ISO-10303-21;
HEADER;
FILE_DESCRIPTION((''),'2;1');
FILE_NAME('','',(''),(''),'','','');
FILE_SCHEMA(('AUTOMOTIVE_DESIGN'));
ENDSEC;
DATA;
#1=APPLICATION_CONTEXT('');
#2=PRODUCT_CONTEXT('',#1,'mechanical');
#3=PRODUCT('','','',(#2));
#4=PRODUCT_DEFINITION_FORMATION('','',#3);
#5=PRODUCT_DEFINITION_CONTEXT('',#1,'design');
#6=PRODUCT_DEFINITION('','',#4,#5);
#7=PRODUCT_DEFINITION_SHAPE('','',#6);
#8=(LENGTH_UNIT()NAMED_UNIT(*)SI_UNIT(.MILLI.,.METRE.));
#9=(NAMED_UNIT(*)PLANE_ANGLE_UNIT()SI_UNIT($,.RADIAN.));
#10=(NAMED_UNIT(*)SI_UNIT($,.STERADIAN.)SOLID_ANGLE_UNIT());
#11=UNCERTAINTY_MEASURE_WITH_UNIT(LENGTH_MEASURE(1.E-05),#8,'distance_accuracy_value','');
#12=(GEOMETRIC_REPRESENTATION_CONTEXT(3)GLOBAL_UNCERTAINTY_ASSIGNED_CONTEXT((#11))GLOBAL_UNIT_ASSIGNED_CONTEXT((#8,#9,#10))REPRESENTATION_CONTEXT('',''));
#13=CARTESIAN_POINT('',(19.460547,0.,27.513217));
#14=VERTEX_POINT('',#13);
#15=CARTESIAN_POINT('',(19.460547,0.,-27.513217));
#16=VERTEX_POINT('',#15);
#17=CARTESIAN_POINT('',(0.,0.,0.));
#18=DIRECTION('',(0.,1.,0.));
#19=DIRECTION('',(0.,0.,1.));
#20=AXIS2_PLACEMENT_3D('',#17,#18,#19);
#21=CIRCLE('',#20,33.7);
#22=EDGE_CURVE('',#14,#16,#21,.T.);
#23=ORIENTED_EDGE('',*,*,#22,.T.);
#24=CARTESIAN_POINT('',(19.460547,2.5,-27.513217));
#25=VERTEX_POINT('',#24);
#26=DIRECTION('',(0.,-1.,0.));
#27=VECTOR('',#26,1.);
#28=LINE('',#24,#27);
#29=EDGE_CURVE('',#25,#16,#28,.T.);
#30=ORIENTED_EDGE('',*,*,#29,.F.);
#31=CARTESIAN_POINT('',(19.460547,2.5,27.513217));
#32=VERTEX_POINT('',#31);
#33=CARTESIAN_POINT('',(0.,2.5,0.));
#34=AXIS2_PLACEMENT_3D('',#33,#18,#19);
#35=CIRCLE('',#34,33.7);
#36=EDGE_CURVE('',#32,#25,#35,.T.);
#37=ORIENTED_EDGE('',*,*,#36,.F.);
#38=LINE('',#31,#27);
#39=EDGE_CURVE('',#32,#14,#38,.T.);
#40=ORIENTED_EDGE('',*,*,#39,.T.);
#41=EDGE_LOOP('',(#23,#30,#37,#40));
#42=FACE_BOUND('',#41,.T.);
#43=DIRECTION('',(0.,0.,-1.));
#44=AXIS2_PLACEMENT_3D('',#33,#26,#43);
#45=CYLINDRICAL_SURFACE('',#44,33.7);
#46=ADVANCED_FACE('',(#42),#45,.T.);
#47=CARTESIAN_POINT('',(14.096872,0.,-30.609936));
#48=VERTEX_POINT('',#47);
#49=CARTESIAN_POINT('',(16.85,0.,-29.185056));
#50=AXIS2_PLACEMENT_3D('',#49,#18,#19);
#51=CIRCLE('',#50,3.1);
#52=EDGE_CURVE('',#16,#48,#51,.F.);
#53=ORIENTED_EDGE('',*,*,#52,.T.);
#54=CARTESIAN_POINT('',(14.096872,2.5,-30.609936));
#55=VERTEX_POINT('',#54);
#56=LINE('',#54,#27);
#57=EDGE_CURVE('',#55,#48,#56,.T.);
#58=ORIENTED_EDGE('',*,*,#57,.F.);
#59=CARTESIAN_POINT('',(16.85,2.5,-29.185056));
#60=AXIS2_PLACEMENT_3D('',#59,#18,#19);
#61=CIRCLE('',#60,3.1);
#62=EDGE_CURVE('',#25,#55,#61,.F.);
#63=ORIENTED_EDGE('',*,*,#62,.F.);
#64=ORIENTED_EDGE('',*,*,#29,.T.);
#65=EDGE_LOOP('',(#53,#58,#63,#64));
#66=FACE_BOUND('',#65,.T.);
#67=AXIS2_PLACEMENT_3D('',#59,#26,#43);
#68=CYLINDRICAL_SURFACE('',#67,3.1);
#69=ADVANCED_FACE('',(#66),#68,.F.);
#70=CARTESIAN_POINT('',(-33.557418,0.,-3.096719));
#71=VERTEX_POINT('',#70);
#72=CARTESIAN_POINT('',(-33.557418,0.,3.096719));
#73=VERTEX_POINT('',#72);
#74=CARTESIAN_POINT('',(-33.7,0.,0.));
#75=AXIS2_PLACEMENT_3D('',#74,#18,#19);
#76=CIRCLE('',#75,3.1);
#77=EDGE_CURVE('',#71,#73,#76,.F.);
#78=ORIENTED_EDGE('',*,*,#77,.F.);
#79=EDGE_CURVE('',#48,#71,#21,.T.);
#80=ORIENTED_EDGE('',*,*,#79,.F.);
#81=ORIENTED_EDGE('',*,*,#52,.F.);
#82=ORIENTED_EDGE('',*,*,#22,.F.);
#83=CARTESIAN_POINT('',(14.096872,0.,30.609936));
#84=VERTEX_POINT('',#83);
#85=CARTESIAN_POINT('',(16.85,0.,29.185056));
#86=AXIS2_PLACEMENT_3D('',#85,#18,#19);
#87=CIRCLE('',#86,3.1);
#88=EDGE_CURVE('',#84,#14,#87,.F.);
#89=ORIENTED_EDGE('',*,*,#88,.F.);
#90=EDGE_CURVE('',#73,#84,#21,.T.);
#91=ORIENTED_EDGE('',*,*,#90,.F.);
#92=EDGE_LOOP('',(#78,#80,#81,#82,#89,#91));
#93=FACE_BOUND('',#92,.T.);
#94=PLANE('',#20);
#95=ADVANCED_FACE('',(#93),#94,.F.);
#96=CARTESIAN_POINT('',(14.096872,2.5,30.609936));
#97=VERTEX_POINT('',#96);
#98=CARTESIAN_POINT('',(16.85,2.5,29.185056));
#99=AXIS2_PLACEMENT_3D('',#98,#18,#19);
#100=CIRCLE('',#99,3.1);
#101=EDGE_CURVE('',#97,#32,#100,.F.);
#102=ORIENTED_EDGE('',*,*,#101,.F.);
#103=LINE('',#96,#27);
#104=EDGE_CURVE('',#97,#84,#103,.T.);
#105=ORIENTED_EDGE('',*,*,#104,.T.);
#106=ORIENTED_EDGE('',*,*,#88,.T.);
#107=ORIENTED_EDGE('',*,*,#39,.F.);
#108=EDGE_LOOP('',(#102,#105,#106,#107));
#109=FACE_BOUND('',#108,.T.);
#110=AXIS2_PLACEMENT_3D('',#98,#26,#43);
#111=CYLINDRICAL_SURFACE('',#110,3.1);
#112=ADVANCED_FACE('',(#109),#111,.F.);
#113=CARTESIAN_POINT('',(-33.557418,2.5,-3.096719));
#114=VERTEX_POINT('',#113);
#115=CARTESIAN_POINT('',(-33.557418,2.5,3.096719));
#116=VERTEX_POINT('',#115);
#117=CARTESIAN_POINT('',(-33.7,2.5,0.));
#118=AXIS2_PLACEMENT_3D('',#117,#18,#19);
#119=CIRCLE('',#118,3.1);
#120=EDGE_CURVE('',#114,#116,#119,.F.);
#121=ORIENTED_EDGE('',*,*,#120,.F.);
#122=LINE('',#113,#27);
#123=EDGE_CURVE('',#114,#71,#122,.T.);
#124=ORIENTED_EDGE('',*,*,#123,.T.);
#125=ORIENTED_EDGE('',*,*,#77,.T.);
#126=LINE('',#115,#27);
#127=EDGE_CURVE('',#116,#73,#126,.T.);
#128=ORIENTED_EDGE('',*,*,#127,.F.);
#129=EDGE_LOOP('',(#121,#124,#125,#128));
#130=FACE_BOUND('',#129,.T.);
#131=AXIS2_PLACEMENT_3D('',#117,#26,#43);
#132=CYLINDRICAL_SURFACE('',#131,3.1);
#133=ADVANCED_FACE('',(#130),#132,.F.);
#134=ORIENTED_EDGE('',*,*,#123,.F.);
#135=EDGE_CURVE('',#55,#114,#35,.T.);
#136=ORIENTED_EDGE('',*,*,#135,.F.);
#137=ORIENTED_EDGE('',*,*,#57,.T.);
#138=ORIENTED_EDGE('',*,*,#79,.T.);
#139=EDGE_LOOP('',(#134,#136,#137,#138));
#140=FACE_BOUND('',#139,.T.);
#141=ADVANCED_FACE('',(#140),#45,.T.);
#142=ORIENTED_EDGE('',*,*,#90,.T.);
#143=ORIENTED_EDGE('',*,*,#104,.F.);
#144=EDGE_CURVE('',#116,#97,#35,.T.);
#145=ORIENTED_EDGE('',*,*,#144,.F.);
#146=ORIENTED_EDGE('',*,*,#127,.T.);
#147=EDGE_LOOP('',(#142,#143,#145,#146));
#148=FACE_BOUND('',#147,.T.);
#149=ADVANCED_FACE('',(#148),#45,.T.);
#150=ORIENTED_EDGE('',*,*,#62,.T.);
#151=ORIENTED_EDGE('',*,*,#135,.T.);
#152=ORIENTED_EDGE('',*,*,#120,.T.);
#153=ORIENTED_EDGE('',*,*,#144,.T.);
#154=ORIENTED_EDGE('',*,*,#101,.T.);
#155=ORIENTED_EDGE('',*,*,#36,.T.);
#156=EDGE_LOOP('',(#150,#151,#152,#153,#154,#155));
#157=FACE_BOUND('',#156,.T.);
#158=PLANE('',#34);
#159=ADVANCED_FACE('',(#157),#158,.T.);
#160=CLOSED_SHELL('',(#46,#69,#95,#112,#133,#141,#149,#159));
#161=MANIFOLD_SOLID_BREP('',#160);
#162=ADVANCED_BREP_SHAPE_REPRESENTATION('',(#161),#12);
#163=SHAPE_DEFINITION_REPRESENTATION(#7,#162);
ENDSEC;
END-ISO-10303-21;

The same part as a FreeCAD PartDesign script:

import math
import FreeCAD as App
import Part
import Sketcher
from FreeCAD import Vector
Q = App.Units.Quantity

doc = App.newDocument("Part")
params = doc.addObject("Spreadsheet::Sheet", "Params")
for row, (alias, value) in enumerate([
    ("sketch1_radius", "3.1 mm"),
    ("sketch1_radius2", "33.7 mm"),
    ("pad1_length", "2.5 mm"),
], start=1):
    params.set(f"A{row}", alias)
    params.set(f"B{row}", "=" + value)
    params.setAlias(f"B{row}", alias)

body = doc.addObject("PartDesign::Body", "Body")

# Sketch on XZ plane
sketch1 = doc.addObject("Sketcher::SketchObject", "Sketch")
body.addObject(sketch1)
sketch1.AttachmentSupport = (doc.XZ_Plane, [""])
sketch1.MapMode = "FlatFace"
sketch1.addGeometry(Part.ArcOfCircle(Part.Circle(Vector(-33.7, 0, 0), Vector(0, 0, 1), 3.1), math.radians(0), math.radians(87.363804)), False)
sketch1.addGeometry(Part.ArcOfCircle(Part.Circle(Vector(0, 0, 0), Vector(0, 0, 1), 33.7), math.radians(65.272392), math.radians(174.727608)), False)
sketch1.addGeometry(Part.ArcOfCircle(Part.Circle(Vector(16.85, 29.185056, 0), Vector(0, 0, 1), 3.1), math.radians(152.636196), math.radians(327.363804)), False)
sketch1.addGeometry(Part.ArcOfCircle(Part.Circle(Vector(0, 0, 0), Vector(0, 0, 1), 33.7), math.radians(0), math.radians(54.727608)), False)
sketch1.addGeometry(Part.ArcOfCircle(Part.Circle(Vector(0, 0, 0), Vector(0, 0, 1), 33.7), math.radians(-54.727608), math.radians(0)), False)
sketch1.addGeometry(Part.ArcOfCircle(Part.Circle(Vector(16.85, -29.185056, 0), Vector(0, 0, 1), 3.1), math.radians(32.636196), math.radians(207.363804)), False)
sketch1.addGeometry(Part.ArcOfCircle(Part.Circle(Vector(0, 0, 0), Vector(0, 0, 1), 33.7), math.radians(-174.727608), math.radians(-65.272392)), False)
sketch1.addGeometry(Part.ArcOfCircle(Part.Circle(Vector(-33.7, 0, 0), Vector(0, 0, 1), 3.1), math.radians(-87.363804), math.radians(0)), False)
sketch1.addConstraint(Sketcher.Constraint("Coincident", 0, 2, 1, 2))
sketch1.addConstraint(Sketcher.Constraint("Coincident", 1, 1, 2, 1))
sketch1.addConstraint(Sketcher.Constraint("Coincident", 2, 2, 3, 2))
sketch1.addConstraint(Sketcher.Constraint("Tangent", 3, 1, 4, 2))
sketch1.addConstraint(Sketcher.Constraint("Coincident", 4, 1, 5, 1))
sketch1.addConstraint(Sketcher.Constraint("Coincident", 5, 2, 6, 2))
sketch1.addConstraint(Sketcher.Constraint("Coincident", 6, 1, 7, 1))
sketch1.addConstraint(Sketcher.Constraint("Tangent", 7, 2, 0, 1))
sketch1.addConstraint(Sketcher.Constraint("Coincident", 1, 3, -1, 1))
sketch1.addConstraint(Sketcher.Constraint("Coincident", 3, 3, -1, 1))
sketch1.addConstraint(Sketcher.Constraint("Coincident", 6, 3, -1, 1))
sketch1.addConstraint(Sketcher.Constraint("Equal", 0, 2))
sketch1.addConstraint(Sketcher.Constraint("Equal", 1, 3))
sketch1.addConstraint(Sketcher.Constraint("Equal", 3, 4))
sketch1.addConstraint(Sketcher.Constraint("Equal", 2, 5))
sketch1.addConstraint(Sketcher.Constraint("Equal", 4, 6))
sketch1.addConstraint(Sketcher.Constraint("Equal", 5, 7))
sketch1.addConstraint(Sketcher.Constraint("Symmetric", 2, 3, 5, 3, -1))
sketch1.addConstraint(Sketcher.Constraint("PointOnObject", 0, 3, -1))
sketch1.addConstraint(Sketcher.Constraint("PointOnObject", 3, 1, -1))
sketch1.addConstraint(Sketcher.Constraint("PointOnObject", 7, 2, -1))
sketch1.addConstraint(Sketcher.Constraint("Radius", 0, Q("3.1 mm")))
sketch1.addConstraint(Sketcher.Constraint("Radius", 1, Q("33.7 mm")))
sketch1.addConstraint(Sketcher.Constraint("DistanceX", 0, 3, -1, 1, Q("33.7 mm")))
sketch1.addConstraint(Sketcher.Constraint("DistanceX", -1, 1, 2, 3, Q("16.85 mm")))
sketch1.addConstraint(Sketcher.Constraint("DistanceX", -1, 1, 1, 1, Q("14.096872 mm")))
sketch1.setExpression("Constraints[21]", "Params.sketch1_radius")
sketch1.setExpression("Constraints[22]", "Params.sketch1_radius2")
pad1 = doc.addObject("PartDesign::Pad", "Pad")
body.addObject(pad1)
pad1.Profile = sketch1
pad1.setExpression("Length", "Params.pad1_length")
pad1.Reversed = True

doc.recompute()
